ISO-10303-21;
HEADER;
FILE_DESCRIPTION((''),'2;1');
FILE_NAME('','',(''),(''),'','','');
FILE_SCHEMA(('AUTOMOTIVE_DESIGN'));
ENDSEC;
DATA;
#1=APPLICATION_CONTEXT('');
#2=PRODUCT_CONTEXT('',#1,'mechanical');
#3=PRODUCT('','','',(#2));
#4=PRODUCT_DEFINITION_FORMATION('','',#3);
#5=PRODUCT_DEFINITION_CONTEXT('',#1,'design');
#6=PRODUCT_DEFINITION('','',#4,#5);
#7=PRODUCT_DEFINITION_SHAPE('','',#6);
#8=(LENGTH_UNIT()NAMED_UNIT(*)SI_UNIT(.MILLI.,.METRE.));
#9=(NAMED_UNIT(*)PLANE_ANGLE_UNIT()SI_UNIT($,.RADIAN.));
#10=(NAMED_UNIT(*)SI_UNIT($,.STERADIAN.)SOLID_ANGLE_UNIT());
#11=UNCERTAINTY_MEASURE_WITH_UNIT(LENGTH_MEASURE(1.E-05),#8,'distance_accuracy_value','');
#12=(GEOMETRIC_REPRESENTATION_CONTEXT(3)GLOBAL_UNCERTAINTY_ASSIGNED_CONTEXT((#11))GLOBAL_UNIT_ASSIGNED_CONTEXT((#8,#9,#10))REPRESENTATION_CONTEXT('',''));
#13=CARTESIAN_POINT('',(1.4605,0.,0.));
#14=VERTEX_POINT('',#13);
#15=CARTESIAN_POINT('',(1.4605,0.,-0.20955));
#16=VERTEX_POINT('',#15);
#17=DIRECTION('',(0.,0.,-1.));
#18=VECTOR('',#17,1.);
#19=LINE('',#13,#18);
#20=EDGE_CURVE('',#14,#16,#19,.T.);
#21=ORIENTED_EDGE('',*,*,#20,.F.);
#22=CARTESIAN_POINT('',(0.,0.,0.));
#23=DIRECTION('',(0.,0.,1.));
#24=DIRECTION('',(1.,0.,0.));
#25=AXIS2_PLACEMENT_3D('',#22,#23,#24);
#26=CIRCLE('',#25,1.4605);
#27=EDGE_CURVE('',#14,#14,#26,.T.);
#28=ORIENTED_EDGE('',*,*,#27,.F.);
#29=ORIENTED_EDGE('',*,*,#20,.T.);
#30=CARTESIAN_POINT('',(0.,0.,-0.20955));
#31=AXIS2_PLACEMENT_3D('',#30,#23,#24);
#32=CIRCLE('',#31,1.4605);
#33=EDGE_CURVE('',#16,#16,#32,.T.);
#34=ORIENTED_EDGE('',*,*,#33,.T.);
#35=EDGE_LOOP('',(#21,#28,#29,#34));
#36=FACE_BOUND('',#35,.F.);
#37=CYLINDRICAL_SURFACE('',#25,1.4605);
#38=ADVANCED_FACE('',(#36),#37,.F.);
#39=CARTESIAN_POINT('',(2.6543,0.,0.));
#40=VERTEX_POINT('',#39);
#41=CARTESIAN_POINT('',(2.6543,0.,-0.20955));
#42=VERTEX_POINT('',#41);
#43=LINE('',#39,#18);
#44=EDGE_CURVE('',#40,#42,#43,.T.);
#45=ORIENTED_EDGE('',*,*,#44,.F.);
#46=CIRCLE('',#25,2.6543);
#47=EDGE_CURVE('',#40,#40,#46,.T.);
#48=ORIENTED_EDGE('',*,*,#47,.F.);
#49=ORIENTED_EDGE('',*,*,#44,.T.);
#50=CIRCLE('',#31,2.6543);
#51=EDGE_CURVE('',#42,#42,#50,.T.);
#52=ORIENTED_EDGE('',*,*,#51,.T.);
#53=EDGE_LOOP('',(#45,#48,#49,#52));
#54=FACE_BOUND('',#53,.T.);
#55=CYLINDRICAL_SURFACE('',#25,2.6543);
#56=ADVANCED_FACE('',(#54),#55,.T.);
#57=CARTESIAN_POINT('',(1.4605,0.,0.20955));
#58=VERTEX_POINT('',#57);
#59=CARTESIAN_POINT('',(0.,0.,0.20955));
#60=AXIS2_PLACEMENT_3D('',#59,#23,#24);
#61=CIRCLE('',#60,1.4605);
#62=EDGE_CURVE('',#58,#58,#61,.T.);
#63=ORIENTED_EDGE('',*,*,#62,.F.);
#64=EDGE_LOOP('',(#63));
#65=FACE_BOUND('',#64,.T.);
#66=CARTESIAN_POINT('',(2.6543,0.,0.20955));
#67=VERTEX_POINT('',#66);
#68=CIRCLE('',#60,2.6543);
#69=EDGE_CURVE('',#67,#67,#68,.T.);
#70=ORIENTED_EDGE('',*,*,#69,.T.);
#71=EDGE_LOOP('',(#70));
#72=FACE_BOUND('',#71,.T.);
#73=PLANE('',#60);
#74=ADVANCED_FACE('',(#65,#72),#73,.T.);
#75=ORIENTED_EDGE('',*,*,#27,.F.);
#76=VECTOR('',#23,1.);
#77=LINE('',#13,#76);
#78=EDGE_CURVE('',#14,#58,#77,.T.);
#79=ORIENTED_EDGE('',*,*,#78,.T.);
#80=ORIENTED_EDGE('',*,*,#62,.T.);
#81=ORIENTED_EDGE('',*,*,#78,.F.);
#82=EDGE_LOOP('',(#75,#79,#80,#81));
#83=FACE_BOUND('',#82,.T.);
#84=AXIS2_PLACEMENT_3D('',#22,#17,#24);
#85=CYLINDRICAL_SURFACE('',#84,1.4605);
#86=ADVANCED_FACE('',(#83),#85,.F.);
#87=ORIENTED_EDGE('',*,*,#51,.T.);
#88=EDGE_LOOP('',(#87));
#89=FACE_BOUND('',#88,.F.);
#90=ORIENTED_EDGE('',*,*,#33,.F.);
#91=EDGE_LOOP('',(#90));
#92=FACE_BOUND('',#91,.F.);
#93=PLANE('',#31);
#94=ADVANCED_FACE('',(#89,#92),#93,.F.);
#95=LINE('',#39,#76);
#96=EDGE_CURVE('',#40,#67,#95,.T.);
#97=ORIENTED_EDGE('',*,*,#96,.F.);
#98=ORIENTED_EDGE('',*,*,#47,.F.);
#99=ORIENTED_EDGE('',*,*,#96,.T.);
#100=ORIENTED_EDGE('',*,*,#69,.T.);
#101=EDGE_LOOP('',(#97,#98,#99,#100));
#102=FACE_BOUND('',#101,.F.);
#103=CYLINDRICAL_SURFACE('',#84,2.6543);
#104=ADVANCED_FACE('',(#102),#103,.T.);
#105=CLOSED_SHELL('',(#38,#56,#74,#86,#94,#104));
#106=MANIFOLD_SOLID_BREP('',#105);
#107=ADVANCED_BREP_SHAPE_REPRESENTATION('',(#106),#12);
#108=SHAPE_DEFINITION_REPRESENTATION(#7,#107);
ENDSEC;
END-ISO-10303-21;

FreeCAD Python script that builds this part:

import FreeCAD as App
import Part
import Sketcher
Q = App.Units.Quantity

doc = App.newDocument("Part")
body = doc.addObject("PartDesign::Body", "Body")

sketch1 = doc.addObject("Sketcher::SketchObject", "Sketch")
body.addObject(sketch1)
sketch1.AttachmentSupport = (doc.XY_Plane, [""])
sketch1.MapMode = "FlatFace"
sketch1.addGeometry(Part.Circle(App.Vector(0, 0, 0), App.Vector(0, 0, 1), 2.7), False)
sketch1.addGeometry(Part.Circle(App.Vector(0, 0, 0), App.Vector(0, 0, 1), 1.5), False)
sketch1.addConstraint(Sketcher.Constraint("Coincident", 0, 3, -1, 1))
sketch1.addConstraint(Sketcher.Constraint("Coincident", 1, 3, -1, 1))
sketch1.addConstraint(Sketcher.Constraint("Diameter", 0, Q("0.209 in")))
sketch1.addConstraint(Sketcher.Constraint("Diameter", 1, Q("0.115 in")))
pad1 = doc.addObject("PartDesign::Pad", "Pad")
body.addObject(pad1)
pad1.Profile = sketch1
pad1.Length = Q("0.0165 in")
pad1.Midplane = True

doc.recompute()
